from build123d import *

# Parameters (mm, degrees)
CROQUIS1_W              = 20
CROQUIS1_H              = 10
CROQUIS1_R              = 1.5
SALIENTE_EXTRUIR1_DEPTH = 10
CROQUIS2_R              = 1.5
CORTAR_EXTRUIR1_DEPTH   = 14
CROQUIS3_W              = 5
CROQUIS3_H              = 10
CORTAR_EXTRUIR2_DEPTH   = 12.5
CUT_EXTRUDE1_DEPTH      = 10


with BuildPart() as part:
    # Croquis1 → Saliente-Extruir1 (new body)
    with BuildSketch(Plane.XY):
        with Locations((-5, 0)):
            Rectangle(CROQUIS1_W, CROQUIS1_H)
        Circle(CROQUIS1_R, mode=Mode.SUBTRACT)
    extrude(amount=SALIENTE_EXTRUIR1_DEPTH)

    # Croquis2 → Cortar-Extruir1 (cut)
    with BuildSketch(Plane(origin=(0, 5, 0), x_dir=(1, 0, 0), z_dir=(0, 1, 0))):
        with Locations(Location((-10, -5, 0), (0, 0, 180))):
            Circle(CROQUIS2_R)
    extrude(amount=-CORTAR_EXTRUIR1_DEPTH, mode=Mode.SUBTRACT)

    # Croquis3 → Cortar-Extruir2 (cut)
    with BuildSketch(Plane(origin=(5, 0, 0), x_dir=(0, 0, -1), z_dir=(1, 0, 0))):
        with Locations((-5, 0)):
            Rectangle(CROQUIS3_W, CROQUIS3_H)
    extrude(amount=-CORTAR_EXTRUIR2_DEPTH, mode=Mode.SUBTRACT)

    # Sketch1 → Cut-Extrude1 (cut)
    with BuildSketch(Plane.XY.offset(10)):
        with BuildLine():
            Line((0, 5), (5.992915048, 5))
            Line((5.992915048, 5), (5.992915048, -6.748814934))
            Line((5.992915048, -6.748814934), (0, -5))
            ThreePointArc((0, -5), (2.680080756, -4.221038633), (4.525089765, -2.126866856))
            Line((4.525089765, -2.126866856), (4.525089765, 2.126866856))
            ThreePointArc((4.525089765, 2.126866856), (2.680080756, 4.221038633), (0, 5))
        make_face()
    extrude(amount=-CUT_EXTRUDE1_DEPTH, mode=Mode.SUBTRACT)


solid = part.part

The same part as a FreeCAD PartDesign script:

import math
import FreeCAD as App
import Part
import Sketcher
from FreeCAD import Vector

doc = App.newDocument("Part")
body = doc.addObject("PartDesign::Body", "Body")

# Sketch on XY plane
sketch1 = doc.addObject("Sketcher::SketchObject", "Sketch")
body.addObject(sketch1)
sketch1.AttachmentSupport = (doc.XY_Plane, [""])
sketch1.MapMode = "FlatFace"
sketch1.addGeometry([
    Part.LineSegment(Vector(-15, 5, 0), Vector(-15, -5, 0)),  # 0
    Part.LineSegment(Vector(-15, -5, 0), Vector(5, -5, 0)),  # 1
    Part.LineSegment(Vector(5, -5, 0), Vector(5, 5, 0)),  # 2
    Part.LineSegment(Vector(5, 5, 0), Vector(-15, 5, 0)),  # 3
    Part.Circle(Vector(0, 0, 0), Vector(0, 0, 1), 1.5),  # 4
], False)
sketch1.addConstraint([
    Sketcher.Constraint("Coincident", 0, 2, 1, 1),
    Sketcher.Constraint("Coincident", 1, 2, 2, 1),
    Sketcher.Constraint("Coincident", 2, 2, 3, 1),
    Sketcher.Constraint("Coincident", 3, 2, 0, 1),
    Sketcher.Constraint("Vertical", 0),
    Sketcher.Constraint("Horizontal", 1),
    Sketcher.Constraint("Vertical", 2),
    Sketcher.Constraint("Horizontal", 3),
    Sketcher.Constraint("Coincident", 4, 3, -1, 1),
    Sketcher.Constraint("Diameter", 4, 3.0),
    Sketcher.Constraint("DistanceX", 1, 1, 1, 2, 20.0),
    Sketcher.Constraint("DistanceY", 0, 2, 0, 1, 10.0),
    Sketcher.Constraint("DistanceX", 0, 2, -1, 1, 15.0),
    Sketcher.Constraint("DistanceY", 0, 2, -1, 1, 5.0),
])
pad1 = doc.addObject("PartDesign::Pad", "Pad")
body.addObject(pad1)
pad1.Profile = sketch1
pad1.Length = 10

# Sketch on XZ plane
sketch2 = doc.addObject("Sketcher::SketchObject", "Sketch001")
body.addObject(sketch2)
sketch2.AttachmentSupport = (doc.XZ_Plane, [""])
sketch2.MapMode = "FlatFace"
sketch2.AttachmentOffset = App.Placement(Vector(0, 0, -5), App.Rotation())
sketch2.addGeometry(Part.Circle(Vector(-10, 5, 0), Vector(0, 0, 1), 1.5), False)
sketch2.addConstraint([
    Sketcher.Constraint("Diameter", 0, 3.0),
    Sketcher.Constraint("DistanceX", 0, 3, -1, 1, 10.0),
    Sketcher.Constraint("DistanceY", -1, 1, 0, 3, 5.0),
])
pocket1 = doc.addObject("PartDesign::Pocket", "Pocket")
body.addObject(pocket1)
pocket1.Profile = sketch2
pocket1.Length = 14
pocket1.Reversed = True

# Sketch on YZ plane
sketch3 = doc.addObject("Sketcher::SketchObject", "Sketch002")
body.addObject(sketch3)
sketch3.AttachmentSupport = (doc.YZ_Plane, [""])
sketch3.MapMode = "FlatFace"
sketch3.AttachmentOffset = App.Placement(Vector(0, 0, 5), App.Rotation())
sketch3.addGeometry([
    Part.LineSegment(Vector(5, 8, 0), Vector(-5, 8, 0)),
    Part.LineSegment(Vector(-5, 8, 0), Vector(-5, 2, 0)),
    Part.LineSegment(Vector(-5, 2, 0), Vector(5, 2, 0)),
    Part.LineSegment(Vector(5, 2, 0), Vector(5, 8, 0)),
], False)
sketch3.addConstraint([
    Sketcher.Constraint("Coincident", 0, 2, 1, 1),
    Sketcher.Constraint("Coincident", 1, 2, 2, 1),
    Sketcher.Constraint("Coincident", 2, 2, 3, 1),
    Sketcher.Constraint("Coincident", 3, 2, 0, 1),
    Sketcher.Constraint("Horizontal", 0),
    Sketcher.Constraint("Vertical", 1),
    Sketcher.Constraint("Horizontal", 2),
    Sketcher.Constraint("Vertical", 3),
    Sketcher.Constraint("DistanceX", 0, 2, 0, 1, 10.0),
    Sketcher.Constraint("DistanceY", 1, 2, 1, 1, 5.0),
    Sketcher.Constraint("DistanceX", 0, 2, -1, 1, 5.0),
    Sketcher.Constraint("DistanceY", -1, 1, 0, 2, 7.5),
])
pocket2 = doc.addObject("PartDesign::Pocket", "Pocket001")
body.addObject(pocket2)
pocket2.Profile = sketch3
pocket2.Length = 12.5

# Sketch on XY plane
sketch4 = doc.addObject("Sketcher::SketchObject", "Sketch003")
body.addObject(sketch4)
sketch4.AttachmentSupport = (doc.XY_Plane, [""])
sketch4.MapMode = "FlatFace"
sketch4.AttachmentOffset = App.Placement(Vector(0, 0, 10), App.Rotation())
sketch4.addGeometry([
    Part.LineSegment(Vector(6, 5, 0), Vector(0, 5, 0)),  # 0
    Part.ArcOfCircle(Part.Circle(Vector(0, 0, 0), Vector(0, 0, 1), 5), math.radians(25), math.radians(90)),  # 1
    Part.LineSegment(Vector(4.5, 2.1, 0), Vector(4.5, -2.1, 0)),  # 2
    Part.ArcOfCircle(Part.Circle(Vector(0, 0, 0), Vector(0, 0, 1), 5), math.radians(-90), math.radians(-25)),  # 3
    Part.LineSegment(Vector(0, -5, 0), Vector(6, -6.7, 0)),  # 4
    Part.LineSegment(Vector(6, -6.7, 0), Vector(6, 5, 0)),  # 5
], False)
sketch4.addConstraint([
    Sketcher.Constraint("Tangent", 0, 2, 1, 2),
    Sketcher.Constraint("Coincident", 1, 1, 2, 1),
    Sketcher.Constraint("Coincident", 2, 2, 3, 2),
    Sketcher.Constraint("Coincident", 3, 1, 4, 1),
    Sketcher.Constraint("Coincident", 4, 2, 5, 1),
    Sketcher.Constraint("Coincident", 5, 2, 0, 1),
    Sketcher.Constraint("Horizontal", 0),
    Sketcher.Constraint("Vertical", 2),
    Sketcher.Constraint("Vertical", 5),
    Sketcher.Constraint("Coincident", 1, 3, -1, 1),
    Sketcher.Constraint("Coincident", 3, 3, -1, 1),
    Sketcher.Constraint("Equal", 1, 3),
    Sketcher.Constraint("PointOnObject", 3, 1, -2),
    Sketcher.Constraint("Radius", 1, 5.0),
    Sketcher.Constraint("DistanceX", 0, 2, 0, 1, 5.992915),
    Sketcher.Constraint("DistanceY", 2, 2, 2, 1, 4.253734),
    Sketcher.Constraint("DistanceY", 5, 1, 5, 2, 11.748815),
])
pocket3 = doc.addObject("PartDesign::Pocket", "Pocket002")
body.addObject(pocket3)
pocket3.Profile = sketch4
pocket3.Length = 10

doc.recompute()
